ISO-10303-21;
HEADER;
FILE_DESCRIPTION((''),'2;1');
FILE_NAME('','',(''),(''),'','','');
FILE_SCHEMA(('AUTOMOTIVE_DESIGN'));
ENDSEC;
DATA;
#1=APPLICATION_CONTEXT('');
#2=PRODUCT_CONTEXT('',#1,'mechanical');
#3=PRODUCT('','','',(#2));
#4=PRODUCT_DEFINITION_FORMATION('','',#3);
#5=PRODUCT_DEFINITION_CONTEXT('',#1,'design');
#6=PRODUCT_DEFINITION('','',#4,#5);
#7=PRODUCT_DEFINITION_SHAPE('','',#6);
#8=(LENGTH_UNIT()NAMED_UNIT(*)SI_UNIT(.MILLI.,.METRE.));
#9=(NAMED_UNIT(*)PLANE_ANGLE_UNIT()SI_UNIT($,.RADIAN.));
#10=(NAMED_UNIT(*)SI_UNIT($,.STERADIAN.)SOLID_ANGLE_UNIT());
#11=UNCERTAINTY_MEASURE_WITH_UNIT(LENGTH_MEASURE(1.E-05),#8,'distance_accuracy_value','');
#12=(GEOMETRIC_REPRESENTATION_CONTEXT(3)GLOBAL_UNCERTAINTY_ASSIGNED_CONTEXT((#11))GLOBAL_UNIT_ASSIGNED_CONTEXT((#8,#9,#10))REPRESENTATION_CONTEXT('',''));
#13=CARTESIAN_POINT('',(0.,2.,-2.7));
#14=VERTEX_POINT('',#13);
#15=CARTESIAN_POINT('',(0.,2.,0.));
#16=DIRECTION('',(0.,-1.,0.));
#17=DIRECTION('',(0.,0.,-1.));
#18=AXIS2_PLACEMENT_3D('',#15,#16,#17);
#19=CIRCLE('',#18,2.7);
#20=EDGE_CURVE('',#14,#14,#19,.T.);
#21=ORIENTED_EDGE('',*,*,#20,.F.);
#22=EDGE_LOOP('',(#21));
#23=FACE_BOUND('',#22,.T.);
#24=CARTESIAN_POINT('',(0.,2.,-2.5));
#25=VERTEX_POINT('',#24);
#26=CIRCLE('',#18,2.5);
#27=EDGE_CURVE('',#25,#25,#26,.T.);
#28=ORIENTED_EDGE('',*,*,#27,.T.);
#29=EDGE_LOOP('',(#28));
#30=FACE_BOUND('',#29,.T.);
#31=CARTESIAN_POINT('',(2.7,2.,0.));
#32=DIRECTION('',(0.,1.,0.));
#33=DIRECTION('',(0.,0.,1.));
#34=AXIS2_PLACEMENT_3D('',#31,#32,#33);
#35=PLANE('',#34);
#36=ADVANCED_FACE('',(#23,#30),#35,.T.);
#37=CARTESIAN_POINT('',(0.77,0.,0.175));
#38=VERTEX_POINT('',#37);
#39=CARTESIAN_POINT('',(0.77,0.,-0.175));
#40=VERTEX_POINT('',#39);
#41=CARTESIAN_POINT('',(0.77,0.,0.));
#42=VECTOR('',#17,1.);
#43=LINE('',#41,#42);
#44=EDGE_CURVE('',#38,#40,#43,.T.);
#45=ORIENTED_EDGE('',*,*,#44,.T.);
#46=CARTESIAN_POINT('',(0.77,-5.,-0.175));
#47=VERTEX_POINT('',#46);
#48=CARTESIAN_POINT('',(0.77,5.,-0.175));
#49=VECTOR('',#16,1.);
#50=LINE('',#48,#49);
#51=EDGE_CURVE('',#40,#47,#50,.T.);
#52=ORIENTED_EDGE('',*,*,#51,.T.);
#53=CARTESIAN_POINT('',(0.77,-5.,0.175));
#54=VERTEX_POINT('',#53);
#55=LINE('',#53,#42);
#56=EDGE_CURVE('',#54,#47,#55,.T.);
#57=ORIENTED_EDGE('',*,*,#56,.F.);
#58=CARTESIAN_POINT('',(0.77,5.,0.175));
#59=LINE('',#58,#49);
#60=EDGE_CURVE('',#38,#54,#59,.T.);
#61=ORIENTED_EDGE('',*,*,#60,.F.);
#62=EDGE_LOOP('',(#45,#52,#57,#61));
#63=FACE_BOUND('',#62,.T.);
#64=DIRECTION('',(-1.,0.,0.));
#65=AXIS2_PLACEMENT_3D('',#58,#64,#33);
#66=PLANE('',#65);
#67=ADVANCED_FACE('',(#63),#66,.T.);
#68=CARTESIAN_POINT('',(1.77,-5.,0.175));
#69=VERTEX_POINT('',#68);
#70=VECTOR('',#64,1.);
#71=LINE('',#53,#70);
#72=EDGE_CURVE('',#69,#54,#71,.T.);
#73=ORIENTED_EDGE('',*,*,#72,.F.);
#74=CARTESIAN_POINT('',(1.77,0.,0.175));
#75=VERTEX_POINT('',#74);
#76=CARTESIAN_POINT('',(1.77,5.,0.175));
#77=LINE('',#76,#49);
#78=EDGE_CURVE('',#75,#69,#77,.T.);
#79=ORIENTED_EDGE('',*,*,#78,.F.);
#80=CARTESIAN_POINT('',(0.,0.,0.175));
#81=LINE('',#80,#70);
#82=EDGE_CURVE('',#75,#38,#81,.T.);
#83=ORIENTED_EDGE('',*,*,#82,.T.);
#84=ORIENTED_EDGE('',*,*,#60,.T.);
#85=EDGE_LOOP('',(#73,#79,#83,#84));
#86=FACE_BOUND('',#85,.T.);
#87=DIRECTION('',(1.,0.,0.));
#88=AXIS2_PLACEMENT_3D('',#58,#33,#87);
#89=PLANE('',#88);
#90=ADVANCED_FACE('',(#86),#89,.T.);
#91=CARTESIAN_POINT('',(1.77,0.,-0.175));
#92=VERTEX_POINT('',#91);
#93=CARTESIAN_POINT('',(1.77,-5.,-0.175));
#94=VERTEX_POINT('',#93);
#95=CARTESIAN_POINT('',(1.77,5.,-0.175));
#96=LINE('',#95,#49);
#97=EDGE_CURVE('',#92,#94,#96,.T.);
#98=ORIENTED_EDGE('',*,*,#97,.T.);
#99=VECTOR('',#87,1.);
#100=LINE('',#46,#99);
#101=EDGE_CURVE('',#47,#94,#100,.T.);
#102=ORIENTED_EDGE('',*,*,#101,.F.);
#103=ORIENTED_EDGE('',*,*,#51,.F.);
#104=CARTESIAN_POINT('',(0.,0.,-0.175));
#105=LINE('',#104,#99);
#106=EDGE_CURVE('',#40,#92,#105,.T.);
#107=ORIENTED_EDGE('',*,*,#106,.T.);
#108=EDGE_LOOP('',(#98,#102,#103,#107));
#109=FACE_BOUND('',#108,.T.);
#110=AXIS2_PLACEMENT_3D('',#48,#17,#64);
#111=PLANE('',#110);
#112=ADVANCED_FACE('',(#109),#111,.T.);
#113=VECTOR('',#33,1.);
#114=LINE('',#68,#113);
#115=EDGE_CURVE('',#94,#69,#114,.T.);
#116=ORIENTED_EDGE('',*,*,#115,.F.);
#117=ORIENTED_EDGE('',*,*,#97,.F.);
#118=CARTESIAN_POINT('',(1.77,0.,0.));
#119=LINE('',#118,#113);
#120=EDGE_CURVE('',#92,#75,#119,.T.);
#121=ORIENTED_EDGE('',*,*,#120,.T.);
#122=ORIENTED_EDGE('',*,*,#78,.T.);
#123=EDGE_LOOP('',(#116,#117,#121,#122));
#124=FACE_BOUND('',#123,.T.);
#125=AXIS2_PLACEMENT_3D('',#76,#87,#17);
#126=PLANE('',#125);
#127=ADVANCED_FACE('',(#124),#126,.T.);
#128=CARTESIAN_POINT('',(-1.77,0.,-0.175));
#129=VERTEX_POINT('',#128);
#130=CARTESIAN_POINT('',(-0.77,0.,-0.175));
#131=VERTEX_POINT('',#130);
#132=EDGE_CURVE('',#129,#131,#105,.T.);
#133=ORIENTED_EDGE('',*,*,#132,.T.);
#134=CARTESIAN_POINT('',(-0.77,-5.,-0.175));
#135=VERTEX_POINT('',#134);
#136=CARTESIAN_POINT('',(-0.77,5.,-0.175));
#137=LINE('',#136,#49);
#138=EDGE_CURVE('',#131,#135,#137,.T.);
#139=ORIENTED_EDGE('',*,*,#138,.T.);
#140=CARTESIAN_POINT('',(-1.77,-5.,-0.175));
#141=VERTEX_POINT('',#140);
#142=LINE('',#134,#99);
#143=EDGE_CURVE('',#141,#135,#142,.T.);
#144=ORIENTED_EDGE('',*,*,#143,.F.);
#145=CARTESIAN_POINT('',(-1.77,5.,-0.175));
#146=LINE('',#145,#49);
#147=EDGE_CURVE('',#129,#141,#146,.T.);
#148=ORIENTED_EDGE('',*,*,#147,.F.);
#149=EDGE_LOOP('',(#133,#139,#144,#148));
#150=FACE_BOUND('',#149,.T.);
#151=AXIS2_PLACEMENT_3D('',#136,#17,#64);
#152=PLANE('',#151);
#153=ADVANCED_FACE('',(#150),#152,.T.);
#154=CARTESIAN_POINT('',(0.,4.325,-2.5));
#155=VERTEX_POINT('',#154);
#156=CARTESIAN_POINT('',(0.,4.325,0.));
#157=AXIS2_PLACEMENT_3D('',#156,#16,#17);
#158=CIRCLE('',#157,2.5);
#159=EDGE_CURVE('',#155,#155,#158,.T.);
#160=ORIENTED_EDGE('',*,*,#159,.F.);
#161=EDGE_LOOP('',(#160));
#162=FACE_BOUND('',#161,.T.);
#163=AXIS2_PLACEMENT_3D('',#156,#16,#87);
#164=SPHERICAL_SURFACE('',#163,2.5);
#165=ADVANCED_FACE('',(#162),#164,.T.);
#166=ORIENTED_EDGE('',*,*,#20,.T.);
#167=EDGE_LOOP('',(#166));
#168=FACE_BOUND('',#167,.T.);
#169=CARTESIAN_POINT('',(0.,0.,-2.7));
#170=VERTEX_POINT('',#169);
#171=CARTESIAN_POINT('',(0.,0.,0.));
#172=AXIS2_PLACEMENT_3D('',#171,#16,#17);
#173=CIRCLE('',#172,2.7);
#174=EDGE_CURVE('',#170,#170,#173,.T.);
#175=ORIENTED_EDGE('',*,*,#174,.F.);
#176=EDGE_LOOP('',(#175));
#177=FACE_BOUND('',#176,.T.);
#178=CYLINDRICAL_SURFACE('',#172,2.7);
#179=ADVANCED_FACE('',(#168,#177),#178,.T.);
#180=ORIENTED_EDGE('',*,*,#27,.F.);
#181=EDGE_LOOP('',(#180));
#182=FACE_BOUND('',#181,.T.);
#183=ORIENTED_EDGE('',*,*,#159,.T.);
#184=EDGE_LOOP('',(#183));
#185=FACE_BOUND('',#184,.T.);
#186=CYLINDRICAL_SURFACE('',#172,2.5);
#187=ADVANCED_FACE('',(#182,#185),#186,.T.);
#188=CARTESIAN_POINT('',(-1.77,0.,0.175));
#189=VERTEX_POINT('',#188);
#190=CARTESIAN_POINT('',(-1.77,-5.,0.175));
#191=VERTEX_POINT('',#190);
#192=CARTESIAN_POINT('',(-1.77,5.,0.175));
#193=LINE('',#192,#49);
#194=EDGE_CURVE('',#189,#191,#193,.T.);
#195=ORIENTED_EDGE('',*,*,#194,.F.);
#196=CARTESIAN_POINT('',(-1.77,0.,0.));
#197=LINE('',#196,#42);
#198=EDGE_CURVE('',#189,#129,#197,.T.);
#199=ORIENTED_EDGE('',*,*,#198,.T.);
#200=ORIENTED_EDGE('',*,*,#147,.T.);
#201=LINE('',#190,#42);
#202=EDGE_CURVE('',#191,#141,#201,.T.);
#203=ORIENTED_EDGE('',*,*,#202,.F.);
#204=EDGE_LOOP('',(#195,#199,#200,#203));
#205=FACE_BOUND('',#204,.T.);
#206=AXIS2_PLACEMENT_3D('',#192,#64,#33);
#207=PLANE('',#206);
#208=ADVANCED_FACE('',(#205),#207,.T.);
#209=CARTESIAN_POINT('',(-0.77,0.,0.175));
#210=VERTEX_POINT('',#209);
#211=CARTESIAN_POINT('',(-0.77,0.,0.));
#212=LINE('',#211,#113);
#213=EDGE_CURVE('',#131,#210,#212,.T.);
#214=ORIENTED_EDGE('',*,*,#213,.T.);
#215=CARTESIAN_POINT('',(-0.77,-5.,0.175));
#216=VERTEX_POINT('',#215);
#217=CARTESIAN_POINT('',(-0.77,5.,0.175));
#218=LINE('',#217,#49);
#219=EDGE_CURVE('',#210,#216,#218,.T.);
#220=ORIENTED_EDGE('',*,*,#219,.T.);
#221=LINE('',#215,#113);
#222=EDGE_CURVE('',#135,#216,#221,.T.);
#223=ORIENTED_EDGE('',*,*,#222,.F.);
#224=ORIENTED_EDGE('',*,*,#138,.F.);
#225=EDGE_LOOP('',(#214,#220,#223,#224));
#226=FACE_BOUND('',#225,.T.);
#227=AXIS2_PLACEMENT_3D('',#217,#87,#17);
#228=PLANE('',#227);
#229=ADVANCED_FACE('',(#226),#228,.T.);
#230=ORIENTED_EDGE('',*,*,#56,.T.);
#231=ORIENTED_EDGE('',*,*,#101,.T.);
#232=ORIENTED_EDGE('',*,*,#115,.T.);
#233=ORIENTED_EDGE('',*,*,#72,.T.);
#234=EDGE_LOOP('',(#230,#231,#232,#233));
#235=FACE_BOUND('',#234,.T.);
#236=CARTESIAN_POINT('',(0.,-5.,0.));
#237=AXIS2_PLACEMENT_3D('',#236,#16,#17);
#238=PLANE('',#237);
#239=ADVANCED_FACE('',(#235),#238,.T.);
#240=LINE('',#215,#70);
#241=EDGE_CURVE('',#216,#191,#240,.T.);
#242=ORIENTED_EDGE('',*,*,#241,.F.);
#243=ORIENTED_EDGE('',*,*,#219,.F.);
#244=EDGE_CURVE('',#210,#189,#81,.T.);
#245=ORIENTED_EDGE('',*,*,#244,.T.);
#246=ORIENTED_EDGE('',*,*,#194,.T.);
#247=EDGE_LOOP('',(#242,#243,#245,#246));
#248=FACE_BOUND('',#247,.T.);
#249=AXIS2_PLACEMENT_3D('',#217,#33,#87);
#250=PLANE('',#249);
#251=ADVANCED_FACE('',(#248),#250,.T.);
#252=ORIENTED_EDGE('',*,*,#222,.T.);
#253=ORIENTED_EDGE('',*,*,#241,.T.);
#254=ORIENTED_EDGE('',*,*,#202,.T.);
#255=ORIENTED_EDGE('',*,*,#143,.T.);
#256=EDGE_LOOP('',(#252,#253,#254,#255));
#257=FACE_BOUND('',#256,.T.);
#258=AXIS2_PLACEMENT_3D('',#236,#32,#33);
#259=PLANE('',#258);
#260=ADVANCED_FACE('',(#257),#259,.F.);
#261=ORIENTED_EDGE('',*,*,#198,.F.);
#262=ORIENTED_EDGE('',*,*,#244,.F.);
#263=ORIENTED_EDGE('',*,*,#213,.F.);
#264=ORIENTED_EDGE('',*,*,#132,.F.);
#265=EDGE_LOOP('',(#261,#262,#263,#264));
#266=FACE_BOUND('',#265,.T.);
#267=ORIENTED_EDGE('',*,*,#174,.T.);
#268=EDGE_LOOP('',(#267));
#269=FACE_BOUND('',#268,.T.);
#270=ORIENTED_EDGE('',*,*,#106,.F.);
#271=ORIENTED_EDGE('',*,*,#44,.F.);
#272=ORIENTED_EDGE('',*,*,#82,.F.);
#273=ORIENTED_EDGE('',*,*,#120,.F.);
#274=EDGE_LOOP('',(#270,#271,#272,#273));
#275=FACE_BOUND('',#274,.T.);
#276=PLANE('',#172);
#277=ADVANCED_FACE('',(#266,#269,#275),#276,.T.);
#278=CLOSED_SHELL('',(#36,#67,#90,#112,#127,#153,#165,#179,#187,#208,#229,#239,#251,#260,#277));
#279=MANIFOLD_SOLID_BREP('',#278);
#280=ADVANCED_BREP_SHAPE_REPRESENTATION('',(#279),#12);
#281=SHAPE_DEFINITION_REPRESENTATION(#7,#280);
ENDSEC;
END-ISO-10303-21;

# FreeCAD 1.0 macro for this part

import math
import FreeCAD as App
import Part
import Sketcher
Q = App.Units.Quantity

doc = App.newDocument("Part")
body = doc.addObject("PartDesign::Body", "Body")

# Sketch on XY plane
sketch1 = body.newObject("Sketcher::SketchObject", "Sketch")
sketch1.AttachmentSupport = (doc.getObject("XY_Plane"), [""])
sketch1.MapMode = "FlatFace"
sketch1.addGeometry(Part.LineSegment(App.Vector(0, 6.83, 0), App.Vector(0, 0, 0)), False)
sketch1.addGeometry(Part.LineSegment(App.Vector(0, 0, 0), App.Vector(2.7, 0, 0)), False)
sketch1.addGeometry(Part.LineSegment(App.Vector(2.7, 0, 0), App.Vector(2.7, 2, 0)), False)
sketch1.addGeometry(Part.LineSegment(App.Vector(2.7, 2, 0), App.Vector(2.5, 2, 0)), False)
sketch1.addGeometry(Part.LineSegment(App.Vector(2.5, 2, 0), App.Vector(2.5, 4.33, 0)), False)
sketch1.addGeometry(Part.ArcOfCircle(Part.Circle(App.Vector(0, 4.33, 0), App.Vector(0, 0, 1), 2.5), math.radians(0), math.radians(90)), False)
sketch1.addConstraint(Sketcher.Constraint("Coincident", 0, 2, 1, 1))
sketch1.addConstraint(Sketcher.Constraint("Coincident", 1, 2, 2, 1))
sketch1.addConstraint(Sketcher.Constraint("Coincident", 2, 2, 3, 1))
sketch1.addConstraint(Sketcher.Constraint("Coincident", 3, 2, 4, 1))
sketch1.addConstraint(Sketcher.Constraint("Tangent", 4, 2, 5, 1))
sketch1.addConstraint(Sketcher.Constraint("Coincident", 5, 2, 0, 1))
sketch1.addConstraint(Sketcher.Constraint("Vertical", 0))
sketch1.addConstraint(Sketcher.Constraint("Horizontal", 1))
sketch1.addConstraint(Sketcher.Constraint("Vertical", 2))
sketch1.addConstraint(Sketcher.Constraint("Horizontal", 3))
sketch1.addConstraint(Sketcher.Constraint("Vertical", 4))
sketch1.addConstraint(Sketcher.Constraint("Coincident", 0, 2, -1, 1))
sketch1.addConstraint(Sketcher.Constraint("PointOnObject", 5, 3, -2))
sketch1.addConstraint(Sketcher.Constraint("Radius", 5, Q("2.5 mm")))
sketch1.addConstraint(Sketcher.Constraint("DistanceY", 2, 1, 2, 2, Q("2 mm")))
sketch1.addConstraint(Sketcher.Constraint("DistanceX", 1, 1, 1, 2, Q("2.7 mm")))
sketch1.addConstraint(Sketcher.Constraint("DistanceY", 0, 2, 0, 1, Q("6.825 mm")))
revolution = body.newObject("PartDesign::Revolution", "Revolution")
revolution.Profile = sketch1
revolution.ReferenceAxis = (sketch1, ["V_Axis"])
revolution.Angle = 360

# Sketch on XZ plane
sketch2 = body.newObject("Sketcher::SketchObject", "Sketch001")
sketch2.AttachmentSupport = (doc.getObject("XZ_Plane"), [""])
sketch2.MapMode = "FlatFace"
sketch2.addGeometry(Part.LineSegment(App.Vector(0.77, 0.17, 0), App.Vector(0.77, -0.17, 0)), False)
sketch2.addGeometry(Part.LineSegment(App.Vector(0.77, -0.17, 0), App.Vector(1.77, -0.17, 0)), False)
sketch2.addGeometry(Part.LineSegment(App.Vector(1.77, -0.17, 0), App.Vector(1.77, 0.17, 0)), False)
sketch2.addGeometry(Part.LineSegment(App.Vector(1.77, 0.17, 0), App.Vector(0.77, 0.17, 0)), False)
sketch2.addGeometry(Part.LineSegment(App.Vector(-1.77, 0.17, 0), App.Vector(-1.77, -0.17, 0)), False)
sketch2.addGeometry(Part.LineSegment(App.Vector(-1.77, -0.17, 0), App.Vector(-0.77, -0.17, 0)), False)
sketch2.addGeometry(Part.LineSegment(App.Vector(-0.77, -0.17, 0), App.Vector(-0.77, 0.17, 0)), False)
sketch2.addGeometry(Part.LineSegment(App.Vector(-0.77, 0.17, 0), App.Vector(-1.77, 0.17, 0)), False)
sketch2.addConstraint(Sketcher.Constraint("Coincident", 0, 2, 1, 1))
sketch2.addConstraint(Sketcher.Constraint("Coincident", 1, 2, 2, 1))
sketch2.addConstraint(Sketcher.Constraint("Coincident", 2, 2, 3, 1))
sketch2.addConstraint(Sketcher.Constraint("Coincident", 3, 2, 0, 1))
sketch2.addConstraint(Sketcher.Constraint("Coincident", 4, 2, 5, 1))
sketch2.addConstraint(Sketcher.Constraint("Coincident", 5, 2, 6, 1))
sketch2.addConstraint(Sketcher.Constraint("Coincident", 6, 2, 7, 1))
sketch2.addConstraint(Sketcher.Constraint("Coincident", 7, 2, 4, 1))
sketch2.addConstraint(Sketcher.Constraint("Vertical", 0))
sketch2.addConstraint(Sketcher.Constraint("Horizontal", 1))
sketch2.addConstraint(Sketcher.Constraint("Vertical", 2))
sketch2.addConstraint(Sketcher.Constraint("Horizontal", 3))
sketch2.addConstraint(Sketcher.Constraint("Vertical", 4))
sketch2.addConstraint(Sketcher.Constraint("Horizontal", 5))
sketch2.addConstraint(Sketcher.Constraint("Vertical", 6))
sketch2.addConstraint(Sketcher.Constraint("Horizontal", 7))
sketch2.addConstraint(Sketcher.Constraint("Symmetric", 2, 2, 4, 2, -1, 1))
sketch2.addConstraint(Sketcher.Constraint("Symmetric", 0, 2, 6, 2, -1, 1))
sketch2.addConstraint(Sketcher.Constraint("Horizontal", 1, 2, 4, 2))
sketch2.addConstraint(Sketcher.Constraint("DistanceX", 1, 1, 1, 2, Q("1 mm")))
sketch2.addConstraint(Sketcher.Constraint("DistanceY", 0, 2, 0, 1, Q("0.35 mm")))
sketch2.addConstraint(Sketcher.Constraint("DistanceX", -1, 1, 0, 2, Q("0.77 mm")))
pad1 = body.newObject("PartDesign::Pad", "Pad")
pad1.Profile = sketch2
pad1.Type = "TwoLengths"
pad1.Length = 5
pad1.Length2 = 5

doc.recompute()
